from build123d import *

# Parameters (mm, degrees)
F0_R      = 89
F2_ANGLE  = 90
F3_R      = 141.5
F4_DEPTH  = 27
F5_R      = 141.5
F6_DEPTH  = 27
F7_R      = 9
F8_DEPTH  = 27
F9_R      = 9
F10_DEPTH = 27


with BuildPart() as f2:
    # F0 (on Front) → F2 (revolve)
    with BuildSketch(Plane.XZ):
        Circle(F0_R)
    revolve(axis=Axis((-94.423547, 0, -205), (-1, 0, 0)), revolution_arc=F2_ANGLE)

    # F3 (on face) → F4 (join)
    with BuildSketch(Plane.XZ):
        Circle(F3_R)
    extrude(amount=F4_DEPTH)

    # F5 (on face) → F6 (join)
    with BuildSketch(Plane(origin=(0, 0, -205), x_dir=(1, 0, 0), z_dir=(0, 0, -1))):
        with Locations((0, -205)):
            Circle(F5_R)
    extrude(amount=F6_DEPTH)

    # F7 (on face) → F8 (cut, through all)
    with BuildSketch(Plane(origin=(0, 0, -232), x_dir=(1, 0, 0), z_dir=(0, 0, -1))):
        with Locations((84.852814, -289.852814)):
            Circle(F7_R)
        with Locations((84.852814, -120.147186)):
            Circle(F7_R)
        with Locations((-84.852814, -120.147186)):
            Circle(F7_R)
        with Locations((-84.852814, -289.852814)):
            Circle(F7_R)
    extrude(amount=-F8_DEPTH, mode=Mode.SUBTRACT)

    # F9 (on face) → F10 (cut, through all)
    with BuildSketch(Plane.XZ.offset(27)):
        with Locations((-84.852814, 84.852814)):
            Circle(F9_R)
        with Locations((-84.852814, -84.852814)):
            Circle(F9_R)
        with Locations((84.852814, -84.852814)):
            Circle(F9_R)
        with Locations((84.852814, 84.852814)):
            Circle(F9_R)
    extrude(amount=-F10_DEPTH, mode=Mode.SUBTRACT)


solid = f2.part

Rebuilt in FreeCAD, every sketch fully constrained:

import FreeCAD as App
import Part
import Sketcher
Q = App.Units.Quantity

doc = App.newDocument("Part")
params = doc.addObject("Spreadsheet::Sheet", "Params")
for row, (alias, value) in enumerate([
    ("sketch1_diameter", "178 mm"),
    ("sketch1_width", "10 mm"),
    ("revolution_angle", "90 deg"),
    ("sketch2_diameter", "283 mm"),
    ("pad1_length", "27 mm"),
    ("sketch3_diameter", "283 mm"),
    ("pad2_length", "27 mm"),
    ("sketch4_diameter", "18 mm"),
    ("pocket1_length", "27 mm"),
    ("sketch5_diameter", "18 mm"),
    ("pocket2_length", "27 mm"),
], start=1):
    params.set(f"A{row}", alias)
    params.set(f"B{row}", "=" + value)
    params.setAlias(f"B{row}", alias)

body = doc.addObject("PartDesign::Body", "Body")

# Sketch on XZ plane
sketch1 = doc.addObject("Sketcher::SketchObject", "Sketch")
body.addObject(sketch1)
sketch1.AttachmentSupport = (doc.XZ_Plane, [""])
sketch1.MapMode = "FlatFace"
sketch1.addGeometry(Part.Circle(App.Vector(0, 0, 0), App.Vector(0, 0, 1), 89), False)
sketch1.addGeometry(Part.LineSegment(App.Vector(0, -205, 0), App.Vector(-10, -205, 0)), True)  # axis
sketch1.addConstraint(Sketcher.Constraint("Horizontal", 1))
sketch1.addConstraint(Sketcher.Constraint("Coincident", 0, 3, -1, 1))
sketch1.addConstraint(Sketcher.Constraint("PointOnObject", 1, 1, -2))
sketch1.addConstraint(Sketcher.Constraint("Diameter", 0, Q("178 mm")))
sketch1.addConstraint(Sketcher.Constraint("DistanceX", 1, 2, 1, 1, Q("10 mm")))
sketch1.addConstraint(Sketcher.Constraint("DistanceY", 1, 1, -1, 1, Q("205 mm")))
sketch1.setExpression("Constraints[3]", "Params.sketch1_diameter")
sketch1.setExpression("Constraints[4]", "Params.sketch1_width")
revolution = doc.addObject("PartDesign::Revolution", "Revolution")
body.addObject(revolution)
revolution.Profile = sketch1
revolution.ReferenceAxis = (sketch1, ["Axis0"])
revolution.setExpression("Angle", "Params.revolution_angle")

# Sketch on XZ plane
sketch2 = doc.addObject("Sketcher::SketchObject", "Sketch001")
body.addObject(sketch2)
sketch2.AttachmentSupport = (doc.XZ_Plane, [""])
sketch2.MapMode = "FlatFace"
sketch2.addGeometry(Part.Circle(App.Vector(0, 0, 0), App.Vector(0, 0, 1), 142), False)
sketch2.addConstraint(Sketcher.Constraint("Coincident", 0, 3, -1, 1))
sketch2.addConstraint(Sketcher.Constraint("Diameter", 0, Q("283 mm")))
sketch2.setExpression("Constraints[1]", "Params.sketch2_diameter")
pad1 = doc.addObject("PartDesign::Pad", "Pad")
body.addObject(pad1)
pad1.Profile = sketch2
pad1.setExpression("Length", "Params.pad1_length")

# Sketch on XY plane
sketch3 = doc.addObject("Sketcher::SketchObject", "Sketch002")
body.addObject(sketch3)
sketch3.AttachmentSupport = (doc.XY_Plane, [""])
sketch3.MapMode = "FlatFace"
sketch3.AttachmentOffset = App.Placement(App.Vector(0, 0, -205), App.Rotation())
sketch3.addGeometry(Part.Circle(App.Vector(0, 205, 0), App.Vector(0, 0, 1), 142), False)
sketch3.addConstraint(Sketcher.Constraint("PointOnObject", 0, 3, -2))
sketch3.addConstraint(Sketcher.Constraint("Diameter", 0, Q("283 mm")))
sketch3.addConstraint(Sketcher.Constraint("DistanceY", -1, 1, 0, 3, Q("205 mm")))
sketch3.setExpression("Constraints[1]", "Params.sketch3_diameter")
pad2 = doc.addObject("PartDesign::Pad", "Pad001")
body.addObject(pad2)
pad2.Profile = sketch3
pad2.setExpression("Length", "Params.pad2_length")
pad2.Reversed = True

# Sketch on XY plane
sketch4 = doc.addObject("Sketcher::SketchObject", "Sketch003")
body.addObject(sketch4)
sketch4.AttachmentSupport = (doc.XY_Plane, [""])
sketch4.MapMode = "FlatFace"
sketch4.AttachmentOffset = App.Placement(App.Vector(0, 0, -232), App.Rotation())
sketch4.addGeometry(Part.Circle(App.Vector(85, 290, 0), App.Vector(0, 0, 1), 9), False)
sketch4.addGeometry(Part.Circle(App.Vector(85, 120, 0), App.Vector(0, 0, 1), 9), False)
sketch4.addGeometry(Part.Circle(App.Vector(-85, 120, 0), App.Vector(0, 0, 1), 9), False)
sketch4.addGeometry(Part.Circle(App.Vector(-85, 290, 0), App.Vector(0, 0, 1), 9), False)
sketch4.addConstraint(Sketcher.Constraint("Equal", 0, 1))
sketch4.addConstraint(Sketcher.Constraint("Equal", 1, 2))
sketch4.addConstraint(Sketcher.Constraint("Equal", 2, 3))
sketch4.addConstraint(Sketcher.Constraint("Symmetric", 1, 3, 2, 3, -2))
sketch4.addConstraint(Sketcher.Constraint("Symmetric", 0, 3, 3, 3, -2))
sketch4.addConstraint(Sketcher.Constraint("Vertical", 0, 3, 1, 3))
sketch4.addConstraint(Sketcher.Constraint("Diameter", 0, Q("18 mm")))
sketch4.addConstraint(Sketcher.Constraint("DistanceY", 1, 3, 0, 3, Q("169.705628 mm")))
sketch4.addConstraint(Sketcher.Constraint("DistanceX", -1, 1, 0, 3, Q("84.852814 mm")))
sketch4.addConstraint(Sketcher.Constraint("DistanceY", -1, 1, 0, 3, Q("289.852814 mm")))
sketch4.setExpression("Constraints[6]", "Params.sketch4_diameter")
pocket1 = doc.addObject("PartDesign::Pocket", "Pocket")
body.addObject(pocket1)
pocket1.Profile = sketch4
pocket1.setExpression("Length", "Params.pocket1_length")
pocket1.Reversed = True

# Sketch on XZ plane
sketch5 = doc.addObject("Sketcher::SketchObject", "Sketch004")
body.addObject(sketch5)
sketch5.AttachmentSupport = (doc.XZ_Plane, [""])
sketch5.MapMode = "FlatFace"
sketch5.AttachmentOffset = App.Placement(App.Vector(0, 0, 27), App.Rotation())
sketch5.addGeometry(Part.Circle(App.Vector(-85, 85, 0), App.Vector(0, 0, 1), 9), False)
sketch5.addGeometry(Part.Circle(App.Vector(-85, -85, 0), App.Vector(0, 0, 1), 9), False)
sketch5.addGeometry(Part.Circle(App.Vector(85, -85, 0), App.Vector(0, 0, 1), 9), False)
sketch5.addGeometry(Part.Circle(App.Vector(85, 85, 0), App.Vector(0, 0, 1), 9), False)
sketch5.addConstraint(Sketcher.Constraint("Equal", 0, 1))
sketch5.addConstraint(Sketcher.Constraint("Equal", 1, 2))
sketch5.addConstraint(Sketcher.Constraint("Equal", 2, 3))
sketch5.addConstraint(Sketcher.Constraint("Symmetric", 0, 3, 2, 3, -1, 1))
sketch5.addConstraint(Sketcher.Constraint("Symmetric", 1, 3, 3, 3, -1, 1))
sketch5.addConstraint(Sketcher.Constraint("Symmetric", 1, 3, 2, 3, -2))
sketch5.addConstraint(Sketcher.Constraint("Diameter", 0, Q("18 mm")))
sketch5.addConstraint(Sketcher.Constraint("DistanceX", 0, 3, -1, 1, Q("84.852814 mm")))
sketch5.addConstraint(Sketcher.Constraint("DistanceY", -1, 1, 0, 3, Q("84.852814 mm")))
sketch5.setExpression("Constraints[6]", "Params.sketch5_diameter")
pocket2 = doc.addObject("PartDesign::Pocket", "Pocket001")
body.addObject(pocket2)
pocket2.Profile = sketch5
pocket2.setExpression("Length", "Params.pocket2_length")

doc.recompute()
